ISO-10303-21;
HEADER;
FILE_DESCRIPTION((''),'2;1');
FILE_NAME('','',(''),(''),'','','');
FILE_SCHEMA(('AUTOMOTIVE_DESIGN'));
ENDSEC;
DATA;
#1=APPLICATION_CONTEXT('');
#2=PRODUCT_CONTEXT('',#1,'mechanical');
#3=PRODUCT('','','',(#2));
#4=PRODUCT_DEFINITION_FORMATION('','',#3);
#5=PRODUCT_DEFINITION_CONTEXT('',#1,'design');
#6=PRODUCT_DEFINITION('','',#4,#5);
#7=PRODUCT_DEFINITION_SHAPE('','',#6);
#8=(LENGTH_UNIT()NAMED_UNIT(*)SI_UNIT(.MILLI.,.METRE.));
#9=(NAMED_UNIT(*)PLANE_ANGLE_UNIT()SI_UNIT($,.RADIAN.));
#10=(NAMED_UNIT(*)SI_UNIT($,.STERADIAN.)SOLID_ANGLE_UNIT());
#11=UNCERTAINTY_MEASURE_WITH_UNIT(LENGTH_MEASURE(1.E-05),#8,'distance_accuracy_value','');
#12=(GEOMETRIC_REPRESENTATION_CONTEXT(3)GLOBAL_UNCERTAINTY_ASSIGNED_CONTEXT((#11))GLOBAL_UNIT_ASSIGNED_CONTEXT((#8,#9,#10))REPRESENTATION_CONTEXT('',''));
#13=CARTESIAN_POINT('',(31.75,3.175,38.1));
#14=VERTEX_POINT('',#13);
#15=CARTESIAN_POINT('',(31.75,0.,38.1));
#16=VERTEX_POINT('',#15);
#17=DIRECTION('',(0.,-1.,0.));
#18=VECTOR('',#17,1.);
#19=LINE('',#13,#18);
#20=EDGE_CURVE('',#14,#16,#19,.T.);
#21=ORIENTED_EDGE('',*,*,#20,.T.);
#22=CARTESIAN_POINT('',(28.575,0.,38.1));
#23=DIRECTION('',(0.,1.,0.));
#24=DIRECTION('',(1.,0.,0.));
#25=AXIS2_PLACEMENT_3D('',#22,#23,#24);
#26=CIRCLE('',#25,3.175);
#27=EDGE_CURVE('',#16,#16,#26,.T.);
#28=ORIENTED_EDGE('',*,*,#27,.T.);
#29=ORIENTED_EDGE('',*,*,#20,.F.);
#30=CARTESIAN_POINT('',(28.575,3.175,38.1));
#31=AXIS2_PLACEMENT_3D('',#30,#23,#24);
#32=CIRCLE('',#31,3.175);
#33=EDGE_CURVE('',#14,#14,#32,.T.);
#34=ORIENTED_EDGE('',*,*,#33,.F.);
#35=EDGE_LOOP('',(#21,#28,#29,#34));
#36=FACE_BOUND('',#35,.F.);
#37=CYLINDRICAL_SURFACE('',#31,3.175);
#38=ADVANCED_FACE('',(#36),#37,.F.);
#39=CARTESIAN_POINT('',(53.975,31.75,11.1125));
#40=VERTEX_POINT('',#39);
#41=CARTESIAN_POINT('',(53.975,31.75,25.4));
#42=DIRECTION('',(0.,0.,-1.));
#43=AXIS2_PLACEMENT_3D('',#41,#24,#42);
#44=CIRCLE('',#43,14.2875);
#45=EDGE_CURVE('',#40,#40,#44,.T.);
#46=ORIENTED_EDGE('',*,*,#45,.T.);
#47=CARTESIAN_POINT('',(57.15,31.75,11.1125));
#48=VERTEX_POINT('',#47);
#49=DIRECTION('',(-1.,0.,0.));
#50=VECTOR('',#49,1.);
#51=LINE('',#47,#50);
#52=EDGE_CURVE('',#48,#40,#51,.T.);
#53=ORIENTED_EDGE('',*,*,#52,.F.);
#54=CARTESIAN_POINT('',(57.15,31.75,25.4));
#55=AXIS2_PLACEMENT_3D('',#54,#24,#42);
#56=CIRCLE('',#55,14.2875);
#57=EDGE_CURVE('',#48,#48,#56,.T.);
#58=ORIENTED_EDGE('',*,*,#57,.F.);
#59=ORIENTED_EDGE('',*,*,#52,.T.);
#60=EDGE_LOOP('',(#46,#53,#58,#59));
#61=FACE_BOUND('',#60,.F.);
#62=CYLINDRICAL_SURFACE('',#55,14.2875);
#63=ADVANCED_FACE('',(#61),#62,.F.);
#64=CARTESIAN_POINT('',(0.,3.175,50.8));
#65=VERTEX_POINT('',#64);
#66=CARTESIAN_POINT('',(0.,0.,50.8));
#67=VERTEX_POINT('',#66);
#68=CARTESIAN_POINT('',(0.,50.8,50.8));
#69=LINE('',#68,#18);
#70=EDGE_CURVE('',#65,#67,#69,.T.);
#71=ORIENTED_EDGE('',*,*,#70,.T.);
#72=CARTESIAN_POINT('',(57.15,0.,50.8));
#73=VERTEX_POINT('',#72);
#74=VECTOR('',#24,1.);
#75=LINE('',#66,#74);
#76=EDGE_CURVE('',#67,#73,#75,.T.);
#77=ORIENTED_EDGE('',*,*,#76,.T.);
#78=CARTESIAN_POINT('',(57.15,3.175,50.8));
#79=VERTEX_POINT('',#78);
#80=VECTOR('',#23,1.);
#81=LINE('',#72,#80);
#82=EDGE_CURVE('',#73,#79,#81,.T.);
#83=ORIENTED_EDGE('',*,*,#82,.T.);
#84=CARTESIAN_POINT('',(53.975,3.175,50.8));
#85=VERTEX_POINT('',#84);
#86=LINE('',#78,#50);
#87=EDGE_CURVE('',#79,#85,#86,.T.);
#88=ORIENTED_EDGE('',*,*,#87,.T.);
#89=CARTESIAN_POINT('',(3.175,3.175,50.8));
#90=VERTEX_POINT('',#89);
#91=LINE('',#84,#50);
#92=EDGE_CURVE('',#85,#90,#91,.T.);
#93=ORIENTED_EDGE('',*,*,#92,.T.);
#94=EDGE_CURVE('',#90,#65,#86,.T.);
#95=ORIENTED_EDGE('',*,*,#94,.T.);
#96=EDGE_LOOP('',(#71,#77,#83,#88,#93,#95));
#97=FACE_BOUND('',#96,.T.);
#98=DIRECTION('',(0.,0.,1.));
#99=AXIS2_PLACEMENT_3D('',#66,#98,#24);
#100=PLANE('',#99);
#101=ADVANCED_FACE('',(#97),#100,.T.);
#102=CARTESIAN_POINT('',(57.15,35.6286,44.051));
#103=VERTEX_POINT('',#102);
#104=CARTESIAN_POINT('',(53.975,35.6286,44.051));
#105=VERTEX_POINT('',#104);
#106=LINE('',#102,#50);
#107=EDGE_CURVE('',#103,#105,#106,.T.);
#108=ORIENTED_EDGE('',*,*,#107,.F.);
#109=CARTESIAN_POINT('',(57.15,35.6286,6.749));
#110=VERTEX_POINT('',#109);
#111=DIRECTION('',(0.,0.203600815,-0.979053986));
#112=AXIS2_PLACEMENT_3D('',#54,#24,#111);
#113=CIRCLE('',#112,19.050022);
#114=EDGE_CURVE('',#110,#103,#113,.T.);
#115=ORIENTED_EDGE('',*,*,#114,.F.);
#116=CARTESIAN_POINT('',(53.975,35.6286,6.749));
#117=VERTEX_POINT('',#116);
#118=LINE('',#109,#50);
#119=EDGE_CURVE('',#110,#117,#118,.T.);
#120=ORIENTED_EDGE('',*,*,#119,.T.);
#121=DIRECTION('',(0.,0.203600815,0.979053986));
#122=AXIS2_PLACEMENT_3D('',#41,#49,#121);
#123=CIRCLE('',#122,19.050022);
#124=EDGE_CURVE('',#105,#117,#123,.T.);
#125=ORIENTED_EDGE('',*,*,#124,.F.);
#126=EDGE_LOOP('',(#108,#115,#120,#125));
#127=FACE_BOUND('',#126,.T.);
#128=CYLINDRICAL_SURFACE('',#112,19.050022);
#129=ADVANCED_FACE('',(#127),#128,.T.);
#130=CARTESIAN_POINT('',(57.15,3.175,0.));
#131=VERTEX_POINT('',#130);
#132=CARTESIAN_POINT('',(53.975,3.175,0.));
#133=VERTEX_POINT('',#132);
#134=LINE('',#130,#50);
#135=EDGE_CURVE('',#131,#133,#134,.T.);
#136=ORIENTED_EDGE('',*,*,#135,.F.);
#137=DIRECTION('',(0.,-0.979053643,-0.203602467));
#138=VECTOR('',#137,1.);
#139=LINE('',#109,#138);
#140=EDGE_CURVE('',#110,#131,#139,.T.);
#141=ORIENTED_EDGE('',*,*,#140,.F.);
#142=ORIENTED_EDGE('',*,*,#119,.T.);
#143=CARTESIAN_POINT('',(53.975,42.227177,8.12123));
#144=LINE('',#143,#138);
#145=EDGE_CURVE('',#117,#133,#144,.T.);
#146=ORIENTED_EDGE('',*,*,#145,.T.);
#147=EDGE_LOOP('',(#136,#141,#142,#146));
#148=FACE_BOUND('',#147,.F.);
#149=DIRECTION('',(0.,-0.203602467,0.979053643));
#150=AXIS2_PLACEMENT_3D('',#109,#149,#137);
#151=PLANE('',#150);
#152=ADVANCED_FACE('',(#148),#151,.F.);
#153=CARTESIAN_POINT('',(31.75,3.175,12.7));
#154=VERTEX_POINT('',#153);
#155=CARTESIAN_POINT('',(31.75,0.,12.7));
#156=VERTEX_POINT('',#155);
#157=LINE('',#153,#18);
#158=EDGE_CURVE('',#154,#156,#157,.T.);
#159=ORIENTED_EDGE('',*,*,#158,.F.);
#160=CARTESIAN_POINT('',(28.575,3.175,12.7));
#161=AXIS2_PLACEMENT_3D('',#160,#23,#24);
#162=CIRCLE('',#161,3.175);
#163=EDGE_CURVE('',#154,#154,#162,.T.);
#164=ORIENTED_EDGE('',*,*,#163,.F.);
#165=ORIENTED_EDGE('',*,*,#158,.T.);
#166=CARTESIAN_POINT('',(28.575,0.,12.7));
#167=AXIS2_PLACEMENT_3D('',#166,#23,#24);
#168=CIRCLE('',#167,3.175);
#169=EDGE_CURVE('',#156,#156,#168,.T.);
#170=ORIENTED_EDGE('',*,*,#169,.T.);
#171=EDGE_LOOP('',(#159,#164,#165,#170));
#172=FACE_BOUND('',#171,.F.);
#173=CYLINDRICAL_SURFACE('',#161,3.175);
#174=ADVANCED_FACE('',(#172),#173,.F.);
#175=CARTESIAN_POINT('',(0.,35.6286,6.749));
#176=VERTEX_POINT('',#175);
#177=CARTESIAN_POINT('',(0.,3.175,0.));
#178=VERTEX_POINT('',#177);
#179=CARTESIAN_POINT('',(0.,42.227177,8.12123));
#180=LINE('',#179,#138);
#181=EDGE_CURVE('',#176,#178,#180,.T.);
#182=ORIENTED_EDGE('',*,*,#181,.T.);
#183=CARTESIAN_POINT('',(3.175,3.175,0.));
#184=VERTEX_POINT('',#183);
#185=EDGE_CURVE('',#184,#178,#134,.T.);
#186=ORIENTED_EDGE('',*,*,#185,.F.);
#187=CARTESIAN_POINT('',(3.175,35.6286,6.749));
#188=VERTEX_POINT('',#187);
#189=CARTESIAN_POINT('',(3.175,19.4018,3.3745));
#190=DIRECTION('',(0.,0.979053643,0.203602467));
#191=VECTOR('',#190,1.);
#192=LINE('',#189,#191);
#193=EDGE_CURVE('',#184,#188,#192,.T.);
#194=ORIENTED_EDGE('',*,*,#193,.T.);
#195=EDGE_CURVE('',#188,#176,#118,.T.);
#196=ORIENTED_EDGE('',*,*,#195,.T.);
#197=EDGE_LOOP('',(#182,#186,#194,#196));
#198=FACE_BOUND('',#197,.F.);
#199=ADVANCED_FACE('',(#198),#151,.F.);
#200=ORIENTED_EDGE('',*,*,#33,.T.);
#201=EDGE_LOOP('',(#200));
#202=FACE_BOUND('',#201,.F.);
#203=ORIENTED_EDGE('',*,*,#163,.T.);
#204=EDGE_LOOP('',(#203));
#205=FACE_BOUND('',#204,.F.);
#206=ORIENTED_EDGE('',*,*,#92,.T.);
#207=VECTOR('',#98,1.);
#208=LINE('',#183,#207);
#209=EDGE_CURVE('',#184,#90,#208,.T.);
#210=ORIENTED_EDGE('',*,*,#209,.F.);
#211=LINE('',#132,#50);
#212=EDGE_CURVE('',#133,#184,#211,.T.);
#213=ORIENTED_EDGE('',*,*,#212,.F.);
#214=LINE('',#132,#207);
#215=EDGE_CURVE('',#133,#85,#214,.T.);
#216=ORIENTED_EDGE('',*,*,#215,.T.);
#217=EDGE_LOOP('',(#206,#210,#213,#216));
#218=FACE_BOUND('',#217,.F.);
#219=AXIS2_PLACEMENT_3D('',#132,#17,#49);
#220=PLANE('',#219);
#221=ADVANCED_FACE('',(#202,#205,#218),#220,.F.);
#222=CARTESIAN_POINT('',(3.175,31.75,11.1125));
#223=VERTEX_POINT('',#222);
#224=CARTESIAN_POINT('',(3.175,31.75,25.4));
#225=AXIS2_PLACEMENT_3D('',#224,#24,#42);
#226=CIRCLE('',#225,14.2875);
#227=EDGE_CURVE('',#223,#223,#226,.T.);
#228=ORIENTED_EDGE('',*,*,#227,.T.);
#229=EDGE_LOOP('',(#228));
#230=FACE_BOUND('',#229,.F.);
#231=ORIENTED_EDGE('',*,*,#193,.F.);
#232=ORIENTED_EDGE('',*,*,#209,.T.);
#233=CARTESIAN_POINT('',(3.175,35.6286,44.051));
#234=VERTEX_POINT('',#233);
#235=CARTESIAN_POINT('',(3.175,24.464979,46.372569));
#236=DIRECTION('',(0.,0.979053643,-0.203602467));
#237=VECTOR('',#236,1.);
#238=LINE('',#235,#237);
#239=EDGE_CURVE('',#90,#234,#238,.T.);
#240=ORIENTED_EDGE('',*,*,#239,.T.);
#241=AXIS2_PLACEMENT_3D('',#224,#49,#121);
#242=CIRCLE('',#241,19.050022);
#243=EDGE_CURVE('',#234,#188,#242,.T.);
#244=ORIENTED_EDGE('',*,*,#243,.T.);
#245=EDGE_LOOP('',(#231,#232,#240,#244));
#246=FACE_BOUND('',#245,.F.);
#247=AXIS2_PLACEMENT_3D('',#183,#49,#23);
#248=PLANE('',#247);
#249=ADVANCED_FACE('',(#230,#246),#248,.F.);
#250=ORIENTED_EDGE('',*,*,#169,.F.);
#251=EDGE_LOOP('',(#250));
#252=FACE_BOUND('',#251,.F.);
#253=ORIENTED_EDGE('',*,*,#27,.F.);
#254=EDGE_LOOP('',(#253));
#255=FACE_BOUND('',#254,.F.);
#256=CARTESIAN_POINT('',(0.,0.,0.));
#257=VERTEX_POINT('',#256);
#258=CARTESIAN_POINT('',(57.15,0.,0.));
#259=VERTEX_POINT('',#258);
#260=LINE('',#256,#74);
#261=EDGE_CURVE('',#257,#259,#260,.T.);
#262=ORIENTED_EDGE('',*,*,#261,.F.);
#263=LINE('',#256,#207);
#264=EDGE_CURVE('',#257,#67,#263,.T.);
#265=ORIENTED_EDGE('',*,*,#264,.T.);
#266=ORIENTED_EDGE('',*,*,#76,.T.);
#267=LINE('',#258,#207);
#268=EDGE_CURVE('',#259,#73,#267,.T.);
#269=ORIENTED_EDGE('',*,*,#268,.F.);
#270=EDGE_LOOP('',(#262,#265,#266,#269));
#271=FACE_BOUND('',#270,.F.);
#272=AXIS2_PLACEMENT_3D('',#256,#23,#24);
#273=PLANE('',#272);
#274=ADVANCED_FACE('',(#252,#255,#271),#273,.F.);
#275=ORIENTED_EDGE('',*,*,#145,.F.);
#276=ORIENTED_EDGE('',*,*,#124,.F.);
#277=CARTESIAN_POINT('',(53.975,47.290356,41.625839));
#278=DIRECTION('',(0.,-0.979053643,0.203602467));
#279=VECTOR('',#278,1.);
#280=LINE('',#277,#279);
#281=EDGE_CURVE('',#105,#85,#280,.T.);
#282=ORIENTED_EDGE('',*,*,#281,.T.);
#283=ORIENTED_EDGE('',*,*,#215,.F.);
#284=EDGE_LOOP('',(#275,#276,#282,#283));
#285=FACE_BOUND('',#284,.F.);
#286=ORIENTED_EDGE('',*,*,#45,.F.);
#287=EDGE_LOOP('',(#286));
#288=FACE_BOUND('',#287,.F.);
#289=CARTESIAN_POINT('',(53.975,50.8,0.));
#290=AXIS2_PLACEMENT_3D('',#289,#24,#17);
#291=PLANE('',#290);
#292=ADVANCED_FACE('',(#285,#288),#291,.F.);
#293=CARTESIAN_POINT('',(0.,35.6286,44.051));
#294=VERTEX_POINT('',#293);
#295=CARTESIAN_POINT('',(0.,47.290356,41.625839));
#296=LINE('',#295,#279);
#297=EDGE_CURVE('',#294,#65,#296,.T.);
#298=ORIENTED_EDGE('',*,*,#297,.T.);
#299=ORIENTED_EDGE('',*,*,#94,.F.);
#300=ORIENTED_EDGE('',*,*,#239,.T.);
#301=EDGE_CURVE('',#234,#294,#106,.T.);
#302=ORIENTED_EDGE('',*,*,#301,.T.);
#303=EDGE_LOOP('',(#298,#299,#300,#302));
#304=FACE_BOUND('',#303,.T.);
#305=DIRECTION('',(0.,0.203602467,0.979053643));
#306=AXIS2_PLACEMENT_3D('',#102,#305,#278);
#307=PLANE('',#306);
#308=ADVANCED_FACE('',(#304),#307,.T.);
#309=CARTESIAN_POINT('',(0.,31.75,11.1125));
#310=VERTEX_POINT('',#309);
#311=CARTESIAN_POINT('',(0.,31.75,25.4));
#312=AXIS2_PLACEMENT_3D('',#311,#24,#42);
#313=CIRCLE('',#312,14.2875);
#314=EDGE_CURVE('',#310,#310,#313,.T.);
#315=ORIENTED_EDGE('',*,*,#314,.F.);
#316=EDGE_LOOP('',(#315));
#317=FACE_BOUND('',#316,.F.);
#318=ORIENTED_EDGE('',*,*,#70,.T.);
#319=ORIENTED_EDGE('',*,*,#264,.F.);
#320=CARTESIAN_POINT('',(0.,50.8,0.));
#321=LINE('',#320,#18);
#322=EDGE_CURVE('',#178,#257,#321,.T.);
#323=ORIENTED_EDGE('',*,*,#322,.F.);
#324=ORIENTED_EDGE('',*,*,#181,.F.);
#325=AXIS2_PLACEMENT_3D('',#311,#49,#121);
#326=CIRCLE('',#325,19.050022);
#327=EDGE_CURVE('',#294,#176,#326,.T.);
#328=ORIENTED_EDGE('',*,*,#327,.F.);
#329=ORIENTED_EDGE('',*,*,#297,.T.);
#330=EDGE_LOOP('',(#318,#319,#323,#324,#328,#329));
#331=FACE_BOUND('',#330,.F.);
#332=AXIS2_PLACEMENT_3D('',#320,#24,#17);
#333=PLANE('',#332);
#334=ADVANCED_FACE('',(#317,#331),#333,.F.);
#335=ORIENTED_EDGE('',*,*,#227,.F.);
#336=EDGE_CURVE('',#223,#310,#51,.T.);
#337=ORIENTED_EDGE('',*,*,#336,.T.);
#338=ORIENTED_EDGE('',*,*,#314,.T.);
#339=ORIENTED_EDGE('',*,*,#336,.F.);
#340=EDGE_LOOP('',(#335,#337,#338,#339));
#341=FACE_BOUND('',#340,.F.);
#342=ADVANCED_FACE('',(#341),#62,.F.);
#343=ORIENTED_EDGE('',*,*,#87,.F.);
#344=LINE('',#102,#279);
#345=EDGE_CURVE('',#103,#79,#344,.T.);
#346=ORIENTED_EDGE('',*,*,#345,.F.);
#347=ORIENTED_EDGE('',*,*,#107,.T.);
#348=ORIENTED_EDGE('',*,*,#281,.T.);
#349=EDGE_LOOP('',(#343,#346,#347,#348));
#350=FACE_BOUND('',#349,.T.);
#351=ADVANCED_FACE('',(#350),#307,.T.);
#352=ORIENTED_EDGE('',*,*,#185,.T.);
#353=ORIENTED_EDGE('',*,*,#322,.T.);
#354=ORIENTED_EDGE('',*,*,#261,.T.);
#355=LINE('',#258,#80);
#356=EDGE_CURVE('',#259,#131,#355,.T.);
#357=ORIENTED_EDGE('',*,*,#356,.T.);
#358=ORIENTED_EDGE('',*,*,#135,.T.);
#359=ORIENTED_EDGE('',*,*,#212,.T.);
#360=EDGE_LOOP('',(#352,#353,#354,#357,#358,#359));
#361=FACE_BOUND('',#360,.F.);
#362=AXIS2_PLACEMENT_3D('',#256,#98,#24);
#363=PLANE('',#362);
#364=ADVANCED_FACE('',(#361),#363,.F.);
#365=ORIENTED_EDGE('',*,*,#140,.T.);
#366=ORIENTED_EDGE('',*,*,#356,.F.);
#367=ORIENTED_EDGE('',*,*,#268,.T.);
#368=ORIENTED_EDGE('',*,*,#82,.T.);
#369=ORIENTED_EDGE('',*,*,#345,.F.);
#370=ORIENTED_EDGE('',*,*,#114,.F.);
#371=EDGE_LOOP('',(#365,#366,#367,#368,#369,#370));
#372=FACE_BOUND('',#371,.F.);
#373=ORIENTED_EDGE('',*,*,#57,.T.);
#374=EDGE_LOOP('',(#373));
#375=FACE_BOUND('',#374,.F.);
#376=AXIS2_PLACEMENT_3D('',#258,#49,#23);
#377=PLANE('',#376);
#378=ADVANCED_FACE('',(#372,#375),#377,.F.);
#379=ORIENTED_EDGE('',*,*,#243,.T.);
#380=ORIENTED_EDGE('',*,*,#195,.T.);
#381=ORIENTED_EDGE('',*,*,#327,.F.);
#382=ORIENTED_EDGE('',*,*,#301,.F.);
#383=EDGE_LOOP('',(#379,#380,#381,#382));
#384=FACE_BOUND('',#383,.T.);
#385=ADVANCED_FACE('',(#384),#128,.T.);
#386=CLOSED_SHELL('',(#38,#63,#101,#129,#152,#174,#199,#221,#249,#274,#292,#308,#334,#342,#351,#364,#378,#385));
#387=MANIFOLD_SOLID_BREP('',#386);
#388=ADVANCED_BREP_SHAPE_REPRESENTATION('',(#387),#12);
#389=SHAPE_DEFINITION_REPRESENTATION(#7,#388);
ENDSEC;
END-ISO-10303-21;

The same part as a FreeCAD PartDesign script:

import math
import FreeCAD as App
import Part
import Sketcher
Q = App.Units.Quantity


def add_polygon(sketch, points):
    """Adds a closed chain of lines whose ends are joined by coincident constraints."""
    first, n = sketch.GeometryCount, len(points)
    for a, b in zip(points, points[1:] + points[:1]):
        sketch.addGeometry(Part.LineSegment(App.Vector(*a, 0), App.Vector(*b, 0)), False)
    for i in range(n):
        sketch.addConstraint(Sketcher.Constraint("Coincident", first + i, 2, first + (i + 1) % n, 1))

doc = App.newDocument("Part")
body = doc.addObject("PartDesign::Body", "Body")

sketch1 = body.newObject("Sketcher::SketchObject", "Sketch")
sketch1.AttachmentSupport = (doc.getObject("XY_Plane"), [""])
sketch1.MapMode = "FlatFace"
add_polygon(sketch1, [(0, 50.8), (0, 0), (57.15, 0), (57.15, 50.8), (53.975, 50.8), (53.975, 3.175), (3.175, 3.175), (3.175, 50.8)])
sketch1.addConstraint(Sketcher.Constraint("Vertical", 0))
sketch1.addConstraint(Sketcher.Constraint("Horizontal", 1))
sketch1.addConstraint(Sketcher.Constraint("Vertical", 2))
sketch1.addConstraint(Sketcher.Constraint("Horizontal", 3))
sketch1.addConstraint(Sketcher.Constraint("Vertical", 4))
sketch1.addConstraint(Sketcher.Constraint("Horizontal", 5))
sketch1.addConstraint(Sketcher.Constraint("Vertical", 6))
sketch1.addConstraint(Sketcher.Constraint("Horizontal", 7))
sketch1.addConstraint(Sketcher.Constraint("Coincident", 0, 2, -1, 1))
sketch1.addConstraint(Sketcher.Constraint("Horizontal", 3, 2, 6, 2))
sketch1.addConstraint(Sketcher.Constraint("Equal", 3, 7))
sketch1.addConstraint(Sketcher.Constraint("Equal", 5, 0))
sketch1.addConstraint(Sketcher.Constraint("DistanceX", 5, 2, 5, 1, Q("2 in")))
sketch1.addConstraint(Sketcher.Constraint("DistanceX", 1, 1, 1, 2, Q("2.25 in")))
sketch1.addConstraint(Sketcher.Constraint("DistanceY", -1, 1, 4, 2, Q("0.125 in")))
pad1 = body.newObject("PartDesign::Pad", "Pad")
pad1.Profile = sketch1
pad1.Length = Q("2 in")

sketch2 = body.newObject("Sketcher::SketchObject", "Sketch001")
sketch2.AttachmentSupport = (doc.getObject("YZ_Plane"), [""])
sketch2.MapMode = "FlatFace"
sketch2.AttachmentOffset = App.Placement(App.Vector(0, 0, 2.25 * 25.4), App.Rotation())
sketch2.addGeometry(Part.LineSegment(App.Vector(50.8, 25.4, 0), App.Vector(50.8, 50.8, 0)), False)
sketch2.addGeometry(Part.LineSegment(App.Vector(50.8, 50.8, 0), App.Vector(3.175, 50.8, 0)), False)
sketch2.addGeometry(Part.LineSegment(App.Vector(3.175, 50.8, 0), App.Vector(35.6286, 44.051, 0)), False)
sketch2.addGeometry(Part.ArcOfCircle(Part.Circle(App.Vector(31.75, 25.4, 0), App.Vector(0, 0, 1), 19.050022), math.radians(0), math.radians(78.252396)), False)
sketch2.addGeometry(Part.LineSegment(App.Vector(50.8, 0, 0), App.Vector(50.8, 25.4, 0)), False)
sketch2.addGeometry(Part.ArcOfCircle(Part.Circle(App.Vector(31.75, 25.4, 0), App.Vector(0, 0, 1), 19.050022), math.radians(-78.252396), math.radians(0)), False)
sketch2.addGeometry(Part.LineSegment(App.Vector(35.6286, 6.749, 0), App.Vector(3.175, 0, 0)), False)
sketch2.addGeometry(Part.LineSegment(App.Vector(3.175, 0, 0), App.Vector(50.8, 0, 0)), False)
sketch2.addGeometry(Part.Circle(App.Vector(31.75, 25.4, 0), App.Vector(0, 0, 1), 14.2875), False)
sketch2.addConstraint(Sketcher.Constraint("Coincident", 0, 2, 1, 1))
sketch2.addConstraint(Sketcher.Constraint("Coincident", 1, 2, 2, 1))
sketch2.addConstraint(Sketcher.Constraint("Tangent", 2, 2, 3, 2))
sketch2.addConstraint(Sketcher.Constraint("Tangent", 3, 1, 0, 1))
sketch2.addConstraint(Sketcher.Constraint("Tangent", 4, 2, 5, 2))
sketch2.addConstraint(Sketcher.Constraint("Tangent", 5, 1, 6, 1))
sketch2.addConstraint(Sketcher.Constraint("Coincident", 6, 2, 7, 1))
sketch2.addConstraint(Sketcher.Constraint("Coincident", 7, 2, 4, 1))
sketch2.addConstraint(Sketcher.Constraint("Vertical", 0))
sketch2.addConstraint(Sketcher.Constraint("Horizontal", 1))
sketch2.addConstraint(Sketcher.Constraint("Vertical", 4))
sketch2.addConstraint(Sketcher.Constraint("Horizontal", 7))
sketch2.addConstraint(Sketcher.Constraint("Coincident", 5, 3, 3, 3))
sketch2.addConstraint(Sketcher.Constraint("Coincident", 8, 3, 3, 3))
sketch2.addConstraint(Sketcher.Constraint("Equal", 3, 5))
sketch2.addConstraint(Sketcher.Constraint("PointOnObject", 6, 2, -1))
sketch2.addConstraint(Sketcher.Constraint("Vertical", 2, 2, 5, 1))
sketch2.addConstraint(Sketcher.Constraint("Vertical", 1, 2, 6, 2))
sketch2.addConstraint(Sketcher.Constraint("DistanceY", 0, 1, 0, 2, Q("1 in")))
sketch2.addConstraint(Sketcher.Constraint("Radius", 3, Q("0.75 in")))
sketch2.addConstraint(Sketcher.Constraint("Diameter", 8, Q("1.125 in")))
sketch2.addConstraint(Sketcher.Constraint("DistanceX", -1, 1, 0, 2, Q("2 in")))
sketch2.addConstraint(Sketcher.Constraint("DistanceX", 1, 2, 3, 3, Q("1.125 in")))
pocket1 = body.newObject("PartDesign::Pocket", "Pocket")
pocket1.Profile = sketch2
pocket1.Type = "ThroughAll"

sketch3 = body.newObject("Sketcher::SketchObject", "Sketch002")
sketch3.AttachmentSupport = (doc.getObject("XZ_Plane"), [""])
sketch3.MapMode = "FlatFace"
sketch3.AttachmentOffset = App.Placement(App.Vector(0, 0, -0.125 * 25.4), App.Rotation())
sketch3.addGeometry(Part.Circle(App.Vector(28.575, 12.7, 0), App.Vector(0, 0, 1), 3.175), False)
sketch3.addGeometry(Part.Circle(App.Vector(28.575, 38.1, 0), App.Vector(0, 0, 1), 3.175), False)
sketch3.addConstraint(Sketcher.Constraint("Equal", 0, 1))
sketch3.addConstraint(Sketcher.Constraint("Vertical", 0, 3, 1, 3))
sketch3.addConstraint(Sketcher.Constraint("Diameter", 0, Q("0.25 in")))
sketch3.addConstraint(Sketcher.Constraint("DistanceY", 0, 3, 1, 3, Q("1 in")))
sketch3.addConstraint(Sketcher.Constraint("DistanceY", -1, 1, 0, 3, Q("0.5 in")))
sketch3.addConstraint(Sketcher.Constraint("DistanceX", -1, 1, 0, 3, Q("1.125 in")))
pocket2 = body.newObject("PartDesign::Pocket", "Pocket001")
pocket2.Profile = sketch3
pocket2.Length = Q("2 in")
pocket2.Reversed = True

doc.recompute()
